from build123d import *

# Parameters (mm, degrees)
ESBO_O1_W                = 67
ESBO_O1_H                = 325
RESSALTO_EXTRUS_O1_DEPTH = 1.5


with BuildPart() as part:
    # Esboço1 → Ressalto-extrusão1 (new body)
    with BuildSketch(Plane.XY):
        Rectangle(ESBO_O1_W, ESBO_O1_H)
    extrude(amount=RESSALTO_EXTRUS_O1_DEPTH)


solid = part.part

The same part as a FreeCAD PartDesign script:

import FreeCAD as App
import Part
import Sketcher
from FreeCAD import Vector
Q = App.Units.Quantity


def add_polygon(sketch, points):
    """Adds a closed chain of lines whose ends are joined by coincident constraints."""
    first, n = sketch.GeometryCount, len(points)
    for a, b in zip(points, points[1:] + points[:1]):
        sketch.addGeometry(Part.LineSegment(App.Vector(*a, 0), App.Vector(*b, 0)), False)
    for i in range(n):
        sketch.addConstraint(Sketcher.Constraint("Coincident", first + i, 2, first + (i + 1) % n, 1))

doc = App.newDocument("Part")
body = doc.addObject("PartDesign::Body", "Body")

# Sketch on XY plane
sketch1 = doc.addObject("Sketcher::SketchObject", "Sketch")
body.addObject(sketch1)
sketch1.AttachmentSupport = (doc.XY_Plane, [""])
sketch1.MapMode = "FlatFace"
add_polygon(sketch1, [(-34, 162), (-34, -162), (34, -162), (34, 162)])  # lines 0-3
sketch1.addConstraint([
    Sketcher.Constraint("Vertical", 0),
    Sketcher.Constraint("Horizontal", 1),
    Sketcher.Constraint("Vertical", 2),
    Sketcher.Constraint("Horizontal", 3),
    Sketcher.Constraint("Symmetric", 0, 2, 2, 2, -1, 1),
    Sketcher.Constraint("DistanceX", 1, 1, 1, 2, Q("67 mm")),
    Sketcher.Constraint("DistanceY", 0, 2, 0, 1, Q("325 mm")),
])
pad1 = doc.addObject("PartDesign::Pad", "Pad")
body.addObject(pad1)
pad1.Profile = sketch1
pad1.Length = 1.5

doc.recompute()
